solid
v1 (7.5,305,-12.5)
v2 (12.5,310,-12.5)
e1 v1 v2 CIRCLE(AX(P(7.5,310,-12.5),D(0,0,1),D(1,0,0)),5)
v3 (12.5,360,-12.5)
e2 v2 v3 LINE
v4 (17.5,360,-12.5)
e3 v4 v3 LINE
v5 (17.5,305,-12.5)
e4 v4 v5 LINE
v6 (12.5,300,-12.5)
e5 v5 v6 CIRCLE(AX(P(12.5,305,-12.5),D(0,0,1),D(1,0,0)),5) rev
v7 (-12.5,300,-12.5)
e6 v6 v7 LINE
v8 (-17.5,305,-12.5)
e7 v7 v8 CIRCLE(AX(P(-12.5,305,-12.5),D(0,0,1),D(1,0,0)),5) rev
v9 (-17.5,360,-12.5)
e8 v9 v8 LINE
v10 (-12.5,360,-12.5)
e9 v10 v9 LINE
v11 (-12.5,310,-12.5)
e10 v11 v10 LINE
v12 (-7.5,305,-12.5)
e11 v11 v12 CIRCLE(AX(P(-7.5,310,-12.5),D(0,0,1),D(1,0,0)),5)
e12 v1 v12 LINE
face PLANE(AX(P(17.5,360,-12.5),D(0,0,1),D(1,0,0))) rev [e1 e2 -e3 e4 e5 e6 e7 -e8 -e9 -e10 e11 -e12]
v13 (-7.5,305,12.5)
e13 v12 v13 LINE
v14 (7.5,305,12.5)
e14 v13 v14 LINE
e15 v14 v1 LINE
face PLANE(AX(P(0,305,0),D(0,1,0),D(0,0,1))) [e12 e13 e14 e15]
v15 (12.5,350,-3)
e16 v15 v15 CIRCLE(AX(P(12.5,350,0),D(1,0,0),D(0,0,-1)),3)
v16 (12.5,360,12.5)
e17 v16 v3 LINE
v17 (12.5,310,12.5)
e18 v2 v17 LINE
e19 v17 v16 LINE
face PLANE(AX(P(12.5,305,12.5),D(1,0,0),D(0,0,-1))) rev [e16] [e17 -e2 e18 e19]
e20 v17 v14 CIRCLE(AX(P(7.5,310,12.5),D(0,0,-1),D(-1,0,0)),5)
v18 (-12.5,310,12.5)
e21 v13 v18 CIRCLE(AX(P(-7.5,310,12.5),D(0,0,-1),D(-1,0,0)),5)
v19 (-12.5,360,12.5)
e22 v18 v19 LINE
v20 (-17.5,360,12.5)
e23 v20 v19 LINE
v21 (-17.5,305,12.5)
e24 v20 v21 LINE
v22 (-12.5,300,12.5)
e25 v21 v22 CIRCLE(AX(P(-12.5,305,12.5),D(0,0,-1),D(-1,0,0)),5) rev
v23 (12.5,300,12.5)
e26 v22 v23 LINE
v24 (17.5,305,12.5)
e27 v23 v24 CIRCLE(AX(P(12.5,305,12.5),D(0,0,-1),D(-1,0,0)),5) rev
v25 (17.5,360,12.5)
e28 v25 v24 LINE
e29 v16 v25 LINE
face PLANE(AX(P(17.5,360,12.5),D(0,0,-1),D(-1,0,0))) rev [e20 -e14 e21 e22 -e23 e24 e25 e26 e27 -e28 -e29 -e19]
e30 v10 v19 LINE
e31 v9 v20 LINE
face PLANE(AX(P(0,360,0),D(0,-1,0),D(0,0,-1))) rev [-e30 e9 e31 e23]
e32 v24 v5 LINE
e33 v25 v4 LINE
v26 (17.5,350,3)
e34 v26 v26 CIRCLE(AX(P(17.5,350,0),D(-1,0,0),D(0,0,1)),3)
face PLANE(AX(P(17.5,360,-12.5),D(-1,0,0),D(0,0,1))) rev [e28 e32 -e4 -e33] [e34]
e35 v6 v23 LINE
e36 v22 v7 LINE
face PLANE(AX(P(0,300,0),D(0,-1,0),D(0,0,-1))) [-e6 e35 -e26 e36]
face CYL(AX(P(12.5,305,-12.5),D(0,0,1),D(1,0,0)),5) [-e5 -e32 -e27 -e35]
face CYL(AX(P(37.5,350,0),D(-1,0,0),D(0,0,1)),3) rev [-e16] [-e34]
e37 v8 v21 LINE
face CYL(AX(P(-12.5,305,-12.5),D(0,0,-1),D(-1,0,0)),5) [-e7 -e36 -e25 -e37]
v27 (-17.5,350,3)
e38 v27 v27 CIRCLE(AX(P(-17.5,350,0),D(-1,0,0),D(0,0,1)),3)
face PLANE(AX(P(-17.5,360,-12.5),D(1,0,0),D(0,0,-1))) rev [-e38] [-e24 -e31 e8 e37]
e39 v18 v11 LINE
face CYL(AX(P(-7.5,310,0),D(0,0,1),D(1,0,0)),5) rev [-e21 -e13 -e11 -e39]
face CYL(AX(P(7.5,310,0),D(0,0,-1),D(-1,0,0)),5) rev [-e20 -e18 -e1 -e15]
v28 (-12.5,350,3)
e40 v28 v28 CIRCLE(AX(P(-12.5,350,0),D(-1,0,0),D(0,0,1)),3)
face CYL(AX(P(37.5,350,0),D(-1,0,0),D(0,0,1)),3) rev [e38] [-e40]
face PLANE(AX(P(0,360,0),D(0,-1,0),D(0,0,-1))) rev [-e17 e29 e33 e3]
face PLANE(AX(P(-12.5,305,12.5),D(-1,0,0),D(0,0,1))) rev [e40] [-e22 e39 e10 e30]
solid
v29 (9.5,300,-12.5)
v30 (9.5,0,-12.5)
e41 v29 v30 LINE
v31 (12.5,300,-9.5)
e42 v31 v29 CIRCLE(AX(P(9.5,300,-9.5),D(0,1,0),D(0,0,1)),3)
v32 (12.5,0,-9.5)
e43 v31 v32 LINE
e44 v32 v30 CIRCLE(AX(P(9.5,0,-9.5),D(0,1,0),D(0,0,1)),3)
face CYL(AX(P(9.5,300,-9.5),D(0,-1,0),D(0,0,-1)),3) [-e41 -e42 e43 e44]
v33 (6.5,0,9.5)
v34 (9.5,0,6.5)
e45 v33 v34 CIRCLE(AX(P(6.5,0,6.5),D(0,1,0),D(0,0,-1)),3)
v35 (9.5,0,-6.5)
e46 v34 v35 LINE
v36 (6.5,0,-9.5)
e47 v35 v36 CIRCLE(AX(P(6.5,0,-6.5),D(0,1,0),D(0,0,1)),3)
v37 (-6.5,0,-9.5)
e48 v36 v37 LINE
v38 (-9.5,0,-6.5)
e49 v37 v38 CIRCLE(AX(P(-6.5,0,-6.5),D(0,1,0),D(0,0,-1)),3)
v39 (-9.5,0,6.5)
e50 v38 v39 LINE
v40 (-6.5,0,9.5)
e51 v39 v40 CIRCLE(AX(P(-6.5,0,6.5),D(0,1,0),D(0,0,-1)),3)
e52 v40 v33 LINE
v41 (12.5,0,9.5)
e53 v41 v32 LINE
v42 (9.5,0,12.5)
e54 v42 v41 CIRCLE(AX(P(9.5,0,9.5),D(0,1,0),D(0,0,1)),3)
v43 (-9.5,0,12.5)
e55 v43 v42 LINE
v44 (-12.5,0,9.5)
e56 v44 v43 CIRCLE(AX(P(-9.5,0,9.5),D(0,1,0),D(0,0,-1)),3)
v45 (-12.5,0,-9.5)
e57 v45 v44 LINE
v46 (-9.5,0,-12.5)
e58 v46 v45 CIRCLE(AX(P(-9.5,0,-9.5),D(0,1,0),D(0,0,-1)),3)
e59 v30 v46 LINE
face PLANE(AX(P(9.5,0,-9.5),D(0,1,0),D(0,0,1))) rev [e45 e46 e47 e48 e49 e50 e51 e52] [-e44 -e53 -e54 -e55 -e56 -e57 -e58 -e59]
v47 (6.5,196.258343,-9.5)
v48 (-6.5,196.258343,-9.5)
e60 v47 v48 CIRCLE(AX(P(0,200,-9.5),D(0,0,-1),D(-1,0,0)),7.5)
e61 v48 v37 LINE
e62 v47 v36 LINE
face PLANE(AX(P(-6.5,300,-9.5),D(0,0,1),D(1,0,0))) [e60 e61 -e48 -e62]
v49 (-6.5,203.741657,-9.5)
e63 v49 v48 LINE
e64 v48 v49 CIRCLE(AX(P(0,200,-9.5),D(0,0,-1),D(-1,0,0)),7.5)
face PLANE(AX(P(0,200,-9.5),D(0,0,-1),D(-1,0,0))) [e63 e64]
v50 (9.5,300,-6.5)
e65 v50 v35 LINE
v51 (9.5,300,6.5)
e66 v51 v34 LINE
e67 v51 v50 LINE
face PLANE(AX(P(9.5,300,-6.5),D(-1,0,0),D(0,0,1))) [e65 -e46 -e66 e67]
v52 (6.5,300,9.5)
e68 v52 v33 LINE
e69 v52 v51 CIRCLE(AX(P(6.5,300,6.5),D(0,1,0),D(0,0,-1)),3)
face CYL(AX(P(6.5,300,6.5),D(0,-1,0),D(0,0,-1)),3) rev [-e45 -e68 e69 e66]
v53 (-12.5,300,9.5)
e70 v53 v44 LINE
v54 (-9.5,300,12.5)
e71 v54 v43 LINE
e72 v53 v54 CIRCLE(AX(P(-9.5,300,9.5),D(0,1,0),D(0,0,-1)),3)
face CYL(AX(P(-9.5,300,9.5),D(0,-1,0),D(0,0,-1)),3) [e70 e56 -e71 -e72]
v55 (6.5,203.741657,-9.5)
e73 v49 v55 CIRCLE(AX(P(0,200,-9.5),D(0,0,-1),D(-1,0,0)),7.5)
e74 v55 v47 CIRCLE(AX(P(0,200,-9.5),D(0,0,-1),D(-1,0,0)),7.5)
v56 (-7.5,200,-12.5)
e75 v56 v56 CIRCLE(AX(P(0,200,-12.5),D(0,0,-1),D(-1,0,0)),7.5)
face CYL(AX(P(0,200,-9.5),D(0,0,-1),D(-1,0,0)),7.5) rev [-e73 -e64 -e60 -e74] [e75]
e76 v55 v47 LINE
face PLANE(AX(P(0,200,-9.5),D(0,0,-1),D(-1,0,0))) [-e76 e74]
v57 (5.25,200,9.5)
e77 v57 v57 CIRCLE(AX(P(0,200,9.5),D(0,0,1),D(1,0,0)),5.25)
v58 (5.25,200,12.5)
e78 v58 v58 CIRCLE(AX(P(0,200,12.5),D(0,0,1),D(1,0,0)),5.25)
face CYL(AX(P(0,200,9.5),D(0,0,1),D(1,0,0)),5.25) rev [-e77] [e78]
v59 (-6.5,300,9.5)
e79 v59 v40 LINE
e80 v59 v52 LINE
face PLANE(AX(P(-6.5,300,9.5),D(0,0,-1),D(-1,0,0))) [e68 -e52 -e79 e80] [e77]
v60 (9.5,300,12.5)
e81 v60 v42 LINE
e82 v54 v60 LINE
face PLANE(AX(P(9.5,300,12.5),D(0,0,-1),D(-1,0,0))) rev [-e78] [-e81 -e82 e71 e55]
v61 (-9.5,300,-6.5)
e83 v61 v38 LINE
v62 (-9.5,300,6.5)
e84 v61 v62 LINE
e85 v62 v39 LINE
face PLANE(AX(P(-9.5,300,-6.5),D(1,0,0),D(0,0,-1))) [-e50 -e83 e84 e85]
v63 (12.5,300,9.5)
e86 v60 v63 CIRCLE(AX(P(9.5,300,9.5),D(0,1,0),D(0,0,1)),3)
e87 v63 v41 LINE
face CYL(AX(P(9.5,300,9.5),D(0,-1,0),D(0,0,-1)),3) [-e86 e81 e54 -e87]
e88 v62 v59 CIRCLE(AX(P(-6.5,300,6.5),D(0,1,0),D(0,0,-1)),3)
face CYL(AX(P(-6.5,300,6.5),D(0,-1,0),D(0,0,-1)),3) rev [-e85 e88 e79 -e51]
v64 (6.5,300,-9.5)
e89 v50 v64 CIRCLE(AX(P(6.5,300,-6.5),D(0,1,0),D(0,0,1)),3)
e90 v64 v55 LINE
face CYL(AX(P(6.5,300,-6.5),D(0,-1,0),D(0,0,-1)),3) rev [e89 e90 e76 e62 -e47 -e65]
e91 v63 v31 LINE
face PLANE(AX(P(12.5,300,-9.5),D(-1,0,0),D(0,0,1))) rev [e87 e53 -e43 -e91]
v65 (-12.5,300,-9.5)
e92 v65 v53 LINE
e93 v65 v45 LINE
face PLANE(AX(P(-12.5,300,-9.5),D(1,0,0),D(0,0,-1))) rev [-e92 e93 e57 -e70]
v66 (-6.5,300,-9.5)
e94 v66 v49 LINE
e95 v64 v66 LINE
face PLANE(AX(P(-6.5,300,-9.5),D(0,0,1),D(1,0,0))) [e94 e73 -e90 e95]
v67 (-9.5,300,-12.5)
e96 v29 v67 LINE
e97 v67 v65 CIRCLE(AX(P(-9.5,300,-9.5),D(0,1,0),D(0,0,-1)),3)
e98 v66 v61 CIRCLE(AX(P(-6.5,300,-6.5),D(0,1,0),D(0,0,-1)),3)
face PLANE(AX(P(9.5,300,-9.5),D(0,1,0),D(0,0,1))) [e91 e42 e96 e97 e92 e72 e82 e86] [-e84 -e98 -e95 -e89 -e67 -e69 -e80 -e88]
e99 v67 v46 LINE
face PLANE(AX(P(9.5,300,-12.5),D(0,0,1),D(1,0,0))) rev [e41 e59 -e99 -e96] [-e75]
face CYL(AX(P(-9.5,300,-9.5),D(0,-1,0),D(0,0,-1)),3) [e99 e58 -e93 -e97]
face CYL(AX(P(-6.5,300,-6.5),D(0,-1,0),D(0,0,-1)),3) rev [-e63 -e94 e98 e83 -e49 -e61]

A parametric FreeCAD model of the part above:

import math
import FreeCAD as App
import Part
import Sketcher

V = App.Vector
Q = App.Units.Quantity


def edges_at(feature, points):
    """Names of the edges that pass closest to the given points."""
    edges = feature.Shape.Edges
    near = lambda p: min(range(len(edges)), key=lambda i: edges[i].distToShape(Part.Vertex(*p))[0])
    return sorted({f"Edge{near(p) + 1}" for p in points})

doc = App.newDocument("Part")
body = doc.addObject("PartDesign::Body", "Body")

sketch1 = body.newObject("Sketcher::SketchObject", "Sketch")
sketch1.AttachmentSupport = (doc.getObject("XZ_Plane"), [""])
sketch1.MapMode = "FlatFace"
sketch1.addGeometry(Part.LineSegment(V(9.5, -12.5, 0), V(-9.5, -12.5, 0)), False)
sketch1.addGeometry(Part.ArcOfCircle(Part.Circle(V(-9.5, -9.5, 0), V(0, 0, 1), 3), math.radians(180), math.radians(270)), False)
sketch1.addGeometry(Part.LineSegment(V(-12.5, -9.5, 0), V(-12.5, 9.5, 0)), False)
sketch1.addGeometry(Part.ArcOfCircle(Part.Circle(V(-9.5, 9.5, 0), V(0, 0, 1), 3), math.radians(90), math.radians(180)), False)
sketch1.addGeometry(Part.LineSegment(V(-9.5, 12.5, 0), V(9.5, 12.5, 0)), False)
sketch1.addGeometry(Part.ArcOfCircle(Part.Circle(V(9.5, 9.5, 0), V(0, 0, 1), 3), math.radians(0), math.radians(90)), False)
sketch1.addGeometry(Part.LineSegment(V(12.5, 9.5, 0), V(12.5, -9.5, 0)), False)
sketch1.addGeometry(Part.ArcOfCircle(Part.Circle(V(9.5, -9.5, 0), V(0, 0, 1), 3), math.radians(-90), math.radians(0)), False)
sketch1.addGeometry(Part.ArcOfCircle(Part.Circle(V(-6.5, -6.5, 0), V(0, 0, 1), 3), math.radians(180), math.radians(270)), False)
sketch1.addGeometry(Part.LineSegment(V(-6.5, -9.5, 0), V(6.5, -9.5, 0)), False)
sketch1.addGeometry(Part.ArcOfCircle(Part.Circle(V(6.5, -6.5, 0), V(0, 0, 1), 3), math.radians(-90), math.radians(0)), False)
sketch1.addGeometry(Part.LineSegment(V(9.5, -6.5, 0), V(9.5, 6.5, 0)), False)
sketch1.addGeometry(Part.ArcOfCircle(Part.Circle(V(6.5, 6.5, 0), V(0, 0, 1), 3), math.radians(0), math.radians(90)), False)
sketch1.addGeometry(Part.LineSegment(V(6.5, 9.5, 0), V(-6.5, 9.5, 0)), False)
sketch1.addGeometry(Part.ArcOfCircle(Part.Circle(V(-6.5, 6.5, 0), V(0, 0, 1), 3), math.radians(90), math.radians(180)), False)
sketch1.addGeometry(Part.LineSegment(V(-9.5, 6.5, 0), V(-9.5, -6.5, 0)), False)
sketch1.addConstraint(Sketcher.Constraint("Tangent", 0, 2, 1, 2))
sketch1.addConstraint(Sketcher.Constraint("Tangent", 1, 1, 2, 1))
sketch1.addConstraint(Sketcher.Constraint("Tangent", 2, 2, 3, 2))
sketch1.addConstraint(Sketcher.Constraint("Tangent", 3, 1, 4, 1))
sketch1.addConstraint(Sketcher.Constraint("Tangent", 4, 2, 5, 2))
sketch1.addConstraint(Sketcher.Constraint("Tangent", 5, 1, 6, 1))
sketch1.addConstraint(Sketcher.Constraint("Tangent", 6, 2, 7, 2))
sketch1.addConstraint(Sketcher.Constraint("Tangent", 7, 1, 0, 1))
sketch1.addConstraint(Sketcher.Constraint("Tangent", 8, 2, 9, 1))
sketch1.addConstraint(Sketcher.Constraint("Tangent", 9, 2, 10, 1))
sketch1.addConstraint(Sketcher.Constraint("Tangent", 10, 2, 11, 1))
sketch1.addConstraint(Sketcher.Constraint("Tangent", 11, 2, 12, 1))
sketch1.addConstraint(Sketcher.Constraint("Tangent", 12, 2, 13, 1))
sketch1.addConstraint(Sketcher.Constraint("Tangent", 13, 2, 14, 1))
sketch1.addConstraint(Sketcher.Constraint("Tangent", 14, 2, 15, 1))
sketch1.addConstraint(Sketcher.Constraint("Tangent", 15, 2, 8, 1))
sketch1.addConstraint(Sketcher.Constraint("Horizontal", 0))
sketch1.addConstraint(Sketcher.Constraint("Vertical", 2))
sketch1.addConstraint(Sketcher.Constraint("Horizontal", 4))
sketch1.addConstraint(Sketcher.Constraint("Vertical", 6))
sketch1.addConstraint(Sketcher.Constraint("Horizontal", 9))
sketch1.addConstraint(Sketcher.Constraint("Vertical", 11))
sketch1.addConstraint(Sketcher.Constraint("Horizontal", 13))
sketch1.addConstraint(Sketcher.Constraint("Vertical", 15))
sketch1.addConstraint(Sketcher.Constraint("Equal", 1, 3))
sketch1.addConstraint(Sketcher.Constraint("Equal", 3, 5))
sketch1.addConstraint(Sketcher.Constraint("Equal", 5, 7))
sketch1.addConstraint(Sketcher.Constraint("Equal", 7, 8))
sketch1.addConstraint(Sketcher.Constraint("Equal", 8, 10))
sketch1.addConstraint(Sketcher.Constraint("Equal", 10, 12))
sketch1.addConstraint(Sketcher.Constraint("Equal", 12, 14))
sketch1.addConstraint(Sketcher.Constraint("Symmetric", 1, 3, 5, 3, -1, 1))
sketch1.addConstraint(Sketcher.Constraint("Symmetric", 8, 3, 12, 3, -1, 1))
sketch1.addConstraint(Sketcher.Constraint("Horizontal", 6, 2, 8, 2))
sketch1.addConstraint(Sketcher.Constraint("Vertical", 7, 1, 10, 2))
sketch1.addConstraint(Sketcher.Constraint("Equal", 4, 2))
sketch1.addConstraint(Sketcher.Constraint("Radius", 1, Q("3 mm")))
sketch1.addConstraint(Sketcher.Constraint("DistanceX", 0, 2, 0, 1, Q("19 mm")))
pad1 = body.newObject("PartDesign::Pad", "Pad")
pad1.Profile = sketch1
pad1.Length = 300
pad1.Reversed = True

sketch2 = body.newObject("Sketcher::SketchObject", "Sketch001")
sketch2.AttachmentSupport = (doc.getObject("XY_Plane"), [""])
sketch2.MapMode = "FlatFace"
sketch2.AttachmentOffset = App.Placement(V(0, 0, -12.5), App.Rotation())
sketch2.addGeometry(Part.Circle(V(0, 200, 0), V(0, 0, 1), 8), False)
sketch2.addConstraint(Sketcher.Constraint("PointOnObject", 0, 3, -2))
sketch2.addConstraint(Sketcher.Constraint("Diameter", 0, Q("15 mm")))
sketch2.addConstraint(Sketcher.Constraint("DistanceY", -1, 1, 0, 3, Q("200 mm")))
pocket1 = body.newObject("PartDesign::Pocket", "Pocket")
pocket1.Profile = sketch2
pocket1.Length = 3
pocket1.Reversed = True

sketch3 = body.newObject("Sketcher::SketchObject", "Sketch002")
sketch3.AttachmentSupport = (doc.getObject("XY_Plane"), [""])
sketch3.MapMode = "FlatFace"
sketch3.AttachmentOffset = App.Placement(V(0, 0, 12.5), App.Rotation())
sketch3.addGeometry(Part.Circle(V(0, 200, 0), V(0, 0, 1), 5), False)
sketch3.addConstraint(Sketcher.Constraint("PointOnObject", 0, 3, -2))
sketch3.addConstraint(Sketcher.Constraint("Diameter", 0, Q("10.5 mm")))
sketch3.addConstraint(Sketcher.Constraint("DistanceY", -1, 1, 0, 3, Q("200 mm")))
pocket2 = body.newObject("PartDesign::Pocket", "Pocket001")
pocket2.Profile = sketch3
pocket2.Length = 3
body2 = doc.addObject("PartDesign::Body", "Body001")

sketch4 = body2.newObject("Sketcher::SketchObject", "Sketch003")
sketch4.AttachmentSupport = (doc.getObject("XZ_Plane001"), [""])
sketch4.MapMode = "FlatFace"
sketch4.AttachmentOffset = App.Placement(V(0, 0, -300), App.Rotation())
sketch4.addGeometry(Part.LineSegment(V(-18, -12, 0), V(-18, 12, 0)), False)
sketch4.addGeometry(Part.LineSegment(V(-18, 12, 0), V(18, 12, 0)), False)
sketch4.addGeometry(Part.LineSegment(V(18, 12, 0), V(18, -12, 0)), False)
sketch4.addGeometry(Part.LineSegment(V(18, -12, 0), V(-18, -12, 0)), False)
sketch4.addConstraint(Sketcher.Constraint("Coincident", 0, 2, 1, 1))
sketch4.addConstraint(Sketcher.Constraint("Coincident", 1, 2, 2, 1))
sketch4.addConstraint(Sketcher.Constraint("Coincident", 2, 2, 3, 1))
sketch4.addConstraint(Sketcher.Constraint("Coincident", 3, 2, 0, 1))
sketch4.addConstraint(Sketcher.Constraint("Vertical", 0))
sketch4.addConstraint(Sketcher.Constraint("Horizontal", 1))
sketch4.addConstraint(Sketcher.Constraint("Vertical", 2))
sketch4.addConstraint(Sketcher.Constraint("Horizontal", 3))
sketch4.addConstraint(Sketcher.Constraint("Symmetric", 0, 2, 2, 2, -1, 1))
sketch4.addConstraint(Sketcher.Constraint("DistanceX", 1, 1, 1, 2, Q("35 mm")))
sketch4.addConstraint(Sketcher.Constraint("DistanceY", 0, 1, 0, 2, Q("25 mm")))
pad2 = body2.newObject("PartDesign::Pad", "Pad001")
pad2.Profile = sketch4
pad2.Length = 60
pad2.Reversed = True

sketch5 = body2.newObject("Sketcher::SketchObject", "Sketch004")
sketch5.AttachmentSupport = (doc.getObject("XZ_Plane001"), [""])
sketch5.MapMode = "FlatFace"
sketch5.AttachmentOffset = App.Placement(V(0, 0, -360), App.Rotation())
sketch5.addGeometry(Part.LineSegment(V(-12, -12, 0), V(-12, 12, 0)), False)
sketch5.addGeometry(Part.LineSegment(V(-12, 12, 0), V(12, 12, 0)), False)
sketch5.addGeometry(Part.LineSegment(V(12, 12, 0), V(12, -12, 0)), False)
sketch5.addGeometry(Part.LineSegment(V(12, -12, 0), V(-12, -12, 0)), False)
sketch5.addConstraint(Sketcher.Constraint("Coincident", 0, 2, 1, 1))
sketch5.addConstraint(Sketcher.Constraint("Coincident", 1, 2, 2, 1))
sketch5.addConstraint(Sketcher.Constraint("Coincident", 2, 2, 3, 1))
sketch5.addConstraint(Sketcher.Constraint("Coincident", 3, 2, 0, 1))
sketch5.addConstraint(Sketcher.Constraint("Vertical", 0))
sketch5.addConstraint(Sketcher.Constraint("Horizontal", 1))
sketch5.addConstraint(Sketcher.Constraint("Vertical", 2))
sketch5.addConstraint(Sketcher.Constraint("Horizontal", 3))
sketch5.addConstraint(Sketcher.Constraint("Symmetric", 0, 2, 2, 2, -1, 1))
sketch5.addConstraint(Sketcher.Constraint("Equal", 3, 0))
sketch5.addConstraint(Sketcher.Constraint("DistanceX", 1, 1, 1, 2, Q("25 mm")))
pocket3 = body2.newObject("PartDesign::Pocket", "Pocket002")
pocket3.Profile = sketch5
pocket3.Length = 55
pocket3.Reversed = True

sketch6 = body2.newObject("Sketcher::SketchObject", "Sketch005")
sketch6.AttachmentSupport = (doc.getObject("YZ_Plane001"), [""])
sketch6.MapMode = "FlatFace"
sketch6.AttachmentOffset = App.Placement(V(0, 0, -17.5), App.Rotation())
sketch6.addGeometry(Part.Circle(V(350, 0, 0), V(0, 0, 1), 3), False)
sketch6.addConstraint(Sketcher.Constraint("PointOnObject", 0, 3, -1))
sketch6.addConstraint(Sketcher.Constraint("Diameter", 0, Q("6 mm")))
sketch6.addConstraint(Sketcher.Constraint("DistanceX", -1, 1, 0, 3, Q("350 mm")))
pocket4 = body2.newObject("PartDesign::Pocket", "Pocket003")
pocket4.Profile = sketch6
pocket4.Length = 55
pocket4.Reversed = True
doc.recompute()

fillet = body2.newObject("PartDesign::Fillet", "Fillet")
fillet.Base = (pocket4, edges_at(pocket4, [(-12.5, 305, 0), (12.5, 305, 0)]))
fillet.Radius = 5
doc.recompute()

fillet2 = body2.newObject("PartDesign::Fillet", "Fillet001")
fillet2.Base = (fillet, edges_at(fillet, [(17.5, 300, 0), (-17.5, 300, 0)]))
fillet2.Radius = 5

doc.recompute()
